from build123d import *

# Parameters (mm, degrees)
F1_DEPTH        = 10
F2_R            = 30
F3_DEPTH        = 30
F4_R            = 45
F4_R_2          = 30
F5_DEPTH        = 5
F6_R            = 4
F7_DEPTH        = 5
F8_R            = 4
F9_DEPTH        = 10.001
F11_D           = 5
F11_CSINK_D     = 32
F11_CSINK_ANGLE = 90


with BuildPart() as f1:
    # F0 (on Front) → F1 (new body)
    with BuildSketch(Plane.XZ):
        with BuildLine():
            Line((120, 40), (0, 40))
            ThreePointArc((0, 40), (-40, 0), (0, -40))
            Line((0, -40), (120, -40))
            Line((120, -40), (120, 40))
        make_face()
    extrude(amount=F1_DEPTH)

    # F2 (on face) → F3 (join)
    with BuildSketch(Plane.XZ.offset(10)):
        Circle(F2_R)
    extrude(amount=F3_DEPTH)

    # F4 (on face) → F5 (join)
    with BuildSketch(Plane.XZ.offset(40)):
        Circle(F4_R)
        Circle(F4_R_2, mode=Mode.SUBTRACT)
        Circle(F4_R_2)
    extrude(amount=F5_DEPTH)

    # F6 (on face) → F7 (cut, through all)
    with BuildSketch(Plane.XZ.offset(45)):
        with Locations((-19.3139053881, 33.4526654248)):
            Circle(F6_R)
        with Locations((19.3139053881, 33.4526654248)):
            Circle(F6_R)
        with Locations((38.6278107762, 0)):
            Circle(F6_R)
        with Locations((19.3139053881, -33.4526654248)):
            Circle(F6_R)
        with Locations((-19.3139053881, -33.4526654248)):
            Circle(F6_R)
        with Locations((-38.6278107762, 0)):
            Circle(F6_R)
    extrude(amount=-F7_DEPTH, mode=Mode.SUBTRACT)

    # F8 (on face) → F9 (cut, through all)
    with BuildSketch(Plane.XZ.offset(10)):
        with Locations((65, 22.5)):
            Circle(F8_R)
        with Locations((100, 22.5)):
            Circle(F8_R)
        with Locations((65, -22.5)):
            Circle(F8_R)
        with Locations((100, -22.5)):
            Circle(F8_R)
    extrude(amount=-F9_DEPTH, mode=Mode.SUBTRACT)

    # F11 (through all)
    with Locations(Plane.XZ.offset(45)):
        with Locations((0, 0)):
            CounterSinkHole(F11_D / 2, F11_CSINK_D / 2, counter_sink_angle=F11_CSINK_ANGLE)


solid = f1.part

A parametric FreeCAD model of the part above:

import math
import FreeCAD as App
import Part
import Sketcher
from FreeCAD import Vector
Q = App.Units.Quantity

doc = App.newDocument("Part")
params = doc.addObject("Spreadsheet::Sheet", "Params")
for row, (alias, value) in enumerate([
    ("sketch1_radius", "40 mm"),
    ("sketch1_width", "120 mm"),
    ("pad1_length", "10 mm"),
    ("sketch2_diameter", "60 mm"),
    ("pad2_length", "30 mm"),
    ("sketch3_diameter", "90 mm"),
    ("pad3_length", "5 mm"),
    ("sketch4_diameter", "8 mm"),
    ("pocket1_length", "5 mm"),
    ("sketch5_diameter", "8 mm"),
    ("sketch6_diameter", "5 mm"),
    ("hole_diameter", "5 mm"),
    ("hole_csink_diameter", "32 mm"),
], start=1):
    params.set(f"A{row}", alias)
    params.set(f"B{row}", "=" + value)
    params.setAlias(f"B{row}", alias)

body = doc.addObject("PartDesign::Body", "Body")

# Sketch on XZ plane
sketch1 = body.newObject("Sketcher::SketchObject", "Sketch")
sketch1.AttachmentSupport = (doc.getObject("XZ_Plane"), [""])
sketch1.MapMode = "FlatFace"
sketch1.addGeometry([
    Part.LineSegment(Vector(120, 40, 0), Vector(0, 40, 0)),
    Part.ArcOfCircle(Part.Circle(Vector(0, 0, 0), Vector(0, 0, 1), 40), math.radians(90), math.radians(270)),
    Part.LineSegment(Vector(0, -40, 0), Vector(120, -40, 0)),
    Part.LineSegment(Vector(120, -40, 0), Vector(120, 40, 0)),
], False)
sketch1.addConstraint([
    Sketcher.Constraint("Tangent", 0, 2, 1, 1),
    Sketcher.Constraint("Tangent", 1, 2, 2, 1),
    Sketcher.Constraint("Coincident", 2, 2, 3, 1),
    Sketcher.Constraint("Coincident", 3, 2, 0, 1),
    Sketcher.Constraint("Horizontal", 0),
    Sketcher.Constraint("Horizontal", 2),
    Sketcher.Constraint("Vertical", 3),
    Sketcher.Constraint("Coincident", 1, 3, -1, 1),
    Sketcher.Constraint("Radius", 1, Q("40 mm")),
    Sketcher.Constraint("DistanceX", 0, 2, 0, 1, Q("120 mm")),
])
sketch1.setExpression("Constraints[8]", "Params.sketch1_radius")
sketch1.setExpression("Constraints[9]", "Params.sketch1_width")
pad1 = body.newObject("PartDesign::Pad", "Pad")
pad1.Profile = sketch1
pad1.setExpression("Length", "Params.pad1_length")

# Sketch on XZ plane
sketch2 = body.newObject("Sketcher::SketchObject", "Sketch001")
sketch2.AttachmentSupport = (doc.getObject("XZ_Plane"), [""])
sketch2.MapMode = "FlatFace"
sketch2.AttachmentOffset = App.Placement(Vector(0, 0, 10), App.Rotation())
sketch2.addGeometry(Part.Circle(Vector(0, 0, 0), Vector(0, 0, 1), 30), False)
sketch2.addConstraint([
    Sketcher.Constraint("Coincident", 0, 3, -1, 1),
    Sketcher.Constraint("Diameter", 0, Q("60 mm")),
])
sketch2.setExpression("Constraints[1]", "Params.sketch2_diameter")
pad2 = body.newObject("PartDesign::Pad", "Pad001")
pad2.Profile = sketch2
pad2.setExpression("Length", "Params.pad2_length")

# Sketch on XZ plane
sketch3 = body.newObject("Sketcher::SketchObject", "Sketch002")
sketch3.AttachmentSupport = (doc.getObject("XZ_Plane"), [""])
sketch3.MapMode = "FlatFace"
sketch3.AttachmentOffset = App.Placement(Vector(0, 0, 40), App.Rotation())
sketch3.addGeometry(Part.Circle(Vector(0, 0, 0), Vector(0, 0, 1), 45), False)
sketch3.addConstraint([
    Sketcher.Constraint("Coincident", 0, 3, -1, 1),
    Sketcher.Constraint("Diameter", 0, Q("90 mm")),
])
sketch3.setExpression("Constraints[1]", "Params.sketch3_diameter")
pad3 = body.newObject("PartDesign::Pad", "Pad002")
pad3.Profile = sketch3
pad3.setExpression("Length", "Params.pad3_length")

# Sketch on XZ plane
sketch4 = body.newObject("Sketcher::SketchObject", "Sketch003")
sketch4.AttachmentSupport = (doc.getObject("XZ_Plane"), [""])
sketch4.MapMode = "FlatFace"
sketch4.AttachmentOffset = App.Placement(Vector(0, 0, 45), App.Rotation())
sketch4.addGeometry([
    Part.Circle(Vector(-19.3, 33.5, 0), Vector(0, 0, 1), 4),  # 0
    Part.Circle(Vector(19.3, 33.5, 0), Vector(0, 0, 1), 4),  # 1
    Part.Circle(Vector(38.6, 0, 0), Vector(0, 0, 1), 4),  # 2
    Part.Circle(Vector(19.3, -33.5, 0), Vector(0, 0, 1), 4),  # 3
    Part.Circle(Vector(-19.3, -33.5, 0), Vector(0, 0, 1), 4),  # 4
    Part.Circle(Vector(-38.6, 0, 0), Vector(0, 0, 1), 4),  # 5
], False)
sketch4.addConstraint([
    Sketcher.Constraint("Equal", 0, 1),
    Sketcher.Constraint("Equal", 1, 2),
    Sketcher.Constraint("Equal", 2, 3),
    Sketcher.Constraint("Equal", 3, 4),
    Sketcher.Constraint("Equal", 4, 5),
    Sketcher.Constraint("Symmetric", 0, 3, 3, 3, -1, 1),
    Sketcher.Constraint("Symmetric", 1, 3, 4, 3, -1, 1),
    Sketcher.Constraint("Symmetric", 2, 3, 5, 3, -1, 1),
    Sketcher.Constraint("Symmetric", 0, 3, 1, 3, -2),
    Sketcher.Constraint("PointOnObject", 2, 3, -1),
    Sketcher.Constraint("Diameter", 0, Q("8 mm")),
    Sketcher.Constraint("DistanceX", -1, 1, 2, 3, Q("38.627811 mm")),
    Sketcher.Constraint("DistanceX", 0, 3, 1, 3, Q("38.627811 mm")),
    Sketcher.Constraint("DistanceY", 3, 3, 1, 3, Q("66.905331 mm")),
])
sketch4.setExpression("Constraints[10]", "Params.sketch4_diameter")
pocket1 = body.newObject("PartDesign::Pocket", "Pocket")
pocket1.Profile = sketch4
pocket1.setExpression("Length", "Params.pocket1_length")

# Sketch on XZ plane
sketch5 = body.newObject("Sketcher::SketchObject", "Sketch004")
sketch5.AttachmentSupport = (doc.getObject("XZ_Plane"), [""])
sketch5.MapMode = "FlatFace"
sketch5.AttachmentOffset = App.Placement(Vector(0, 0, 10), App.Rotation())
sketch5.addGeometry([
    Part.Circle(Vector(65, 22.5, 0), Vector(0, 0, 1), 4),
    Part.Circle(Vector(100, 22.5, 0), Vector(0, 0, 1), 4),
    Part.Circle(Vector(65, -22.5, 0), Vector(0, 0, 1), 4),
    Part.Circle(Vector(100, -22.5, 0), Vector(0, 0, 1), 4),
], False)
sketch5.addConstraint([
    Sketcher.Constraint("Equal", 0, 1),
    Sketcher.Constraint("Equal", 1, 2),
    Sketcher.Constraint("Equal", 2, 3),
    Sketcher.Constraint("Symmetric", 0, 3, 2, 3, -1),
    Sketcher.Constraint("Symmetric", 1, 3, 3, 3, -1),
    Sketcher.Constraint("Horizontal", 0, 3, 1, 3),
    Sketcher.Constraint("Diameter", 0, Q("8 mm")),
    Sketcher.Constraint("DistanceX", -1, 1, 0, 3, Q("65 mm")),
    Sketcher.Constraint("DistanceX", -1, 1, 1, 3, Q("100 mm")),
    Sketcher.Constraint("DistanceY", 2, 3, 0, 3, Q("45 mm")),
])
sketch5.setExpression("Constraints[6]", "Params.sketch5_diameter")
pocket2 = body.newObject("PartDesign::Pocket", "Pocket001")
pocket2.Profile = sketch5
pocket2.Type = "ThroughAll"

# Sketch on XZ plane
sketch6 = body.newObject("Sketcher::SketchObject", "Sketch005")
sketch6.AttachmentSupport = (doc.getObject("XZ_Plane"), [""])
sketch6.MapMode = "FlatFace"
sketch6.AttachmentOffset = App.Placement(Vector(0, 0, 45), App.Rotation())
sketch6.addGeometry(Part.Circle(Vector(0, 0, 0), Vector(0, 0, 1), 2.5), False)
sketch6.addConstraint([
    Sketcher.Constraint("Coincident", 0, 3, -1, 1),
    Sketcher.Constraint("Diameter", 0, Q("5 mm")),
])
sketch6.setExpression("Constraints[1]", "Params.sketch6_diameter")
doc.recompute()
hole = body.newObject("PartDesign::Hole", "Hole")
hole.Profile = sketch6
hole.ThreadType = "None"
hole.setExpression("Diameter", "Params.hole_diameter")
hole.DepthType = "ThroughAll"
hole.HoleCutType = "Countersink"
hole.setExpression("HoleCutDiameter", "Params.hole_csink_diameter")
hole.HoleCutCountersinkAngle = 90

doc.recompute()
